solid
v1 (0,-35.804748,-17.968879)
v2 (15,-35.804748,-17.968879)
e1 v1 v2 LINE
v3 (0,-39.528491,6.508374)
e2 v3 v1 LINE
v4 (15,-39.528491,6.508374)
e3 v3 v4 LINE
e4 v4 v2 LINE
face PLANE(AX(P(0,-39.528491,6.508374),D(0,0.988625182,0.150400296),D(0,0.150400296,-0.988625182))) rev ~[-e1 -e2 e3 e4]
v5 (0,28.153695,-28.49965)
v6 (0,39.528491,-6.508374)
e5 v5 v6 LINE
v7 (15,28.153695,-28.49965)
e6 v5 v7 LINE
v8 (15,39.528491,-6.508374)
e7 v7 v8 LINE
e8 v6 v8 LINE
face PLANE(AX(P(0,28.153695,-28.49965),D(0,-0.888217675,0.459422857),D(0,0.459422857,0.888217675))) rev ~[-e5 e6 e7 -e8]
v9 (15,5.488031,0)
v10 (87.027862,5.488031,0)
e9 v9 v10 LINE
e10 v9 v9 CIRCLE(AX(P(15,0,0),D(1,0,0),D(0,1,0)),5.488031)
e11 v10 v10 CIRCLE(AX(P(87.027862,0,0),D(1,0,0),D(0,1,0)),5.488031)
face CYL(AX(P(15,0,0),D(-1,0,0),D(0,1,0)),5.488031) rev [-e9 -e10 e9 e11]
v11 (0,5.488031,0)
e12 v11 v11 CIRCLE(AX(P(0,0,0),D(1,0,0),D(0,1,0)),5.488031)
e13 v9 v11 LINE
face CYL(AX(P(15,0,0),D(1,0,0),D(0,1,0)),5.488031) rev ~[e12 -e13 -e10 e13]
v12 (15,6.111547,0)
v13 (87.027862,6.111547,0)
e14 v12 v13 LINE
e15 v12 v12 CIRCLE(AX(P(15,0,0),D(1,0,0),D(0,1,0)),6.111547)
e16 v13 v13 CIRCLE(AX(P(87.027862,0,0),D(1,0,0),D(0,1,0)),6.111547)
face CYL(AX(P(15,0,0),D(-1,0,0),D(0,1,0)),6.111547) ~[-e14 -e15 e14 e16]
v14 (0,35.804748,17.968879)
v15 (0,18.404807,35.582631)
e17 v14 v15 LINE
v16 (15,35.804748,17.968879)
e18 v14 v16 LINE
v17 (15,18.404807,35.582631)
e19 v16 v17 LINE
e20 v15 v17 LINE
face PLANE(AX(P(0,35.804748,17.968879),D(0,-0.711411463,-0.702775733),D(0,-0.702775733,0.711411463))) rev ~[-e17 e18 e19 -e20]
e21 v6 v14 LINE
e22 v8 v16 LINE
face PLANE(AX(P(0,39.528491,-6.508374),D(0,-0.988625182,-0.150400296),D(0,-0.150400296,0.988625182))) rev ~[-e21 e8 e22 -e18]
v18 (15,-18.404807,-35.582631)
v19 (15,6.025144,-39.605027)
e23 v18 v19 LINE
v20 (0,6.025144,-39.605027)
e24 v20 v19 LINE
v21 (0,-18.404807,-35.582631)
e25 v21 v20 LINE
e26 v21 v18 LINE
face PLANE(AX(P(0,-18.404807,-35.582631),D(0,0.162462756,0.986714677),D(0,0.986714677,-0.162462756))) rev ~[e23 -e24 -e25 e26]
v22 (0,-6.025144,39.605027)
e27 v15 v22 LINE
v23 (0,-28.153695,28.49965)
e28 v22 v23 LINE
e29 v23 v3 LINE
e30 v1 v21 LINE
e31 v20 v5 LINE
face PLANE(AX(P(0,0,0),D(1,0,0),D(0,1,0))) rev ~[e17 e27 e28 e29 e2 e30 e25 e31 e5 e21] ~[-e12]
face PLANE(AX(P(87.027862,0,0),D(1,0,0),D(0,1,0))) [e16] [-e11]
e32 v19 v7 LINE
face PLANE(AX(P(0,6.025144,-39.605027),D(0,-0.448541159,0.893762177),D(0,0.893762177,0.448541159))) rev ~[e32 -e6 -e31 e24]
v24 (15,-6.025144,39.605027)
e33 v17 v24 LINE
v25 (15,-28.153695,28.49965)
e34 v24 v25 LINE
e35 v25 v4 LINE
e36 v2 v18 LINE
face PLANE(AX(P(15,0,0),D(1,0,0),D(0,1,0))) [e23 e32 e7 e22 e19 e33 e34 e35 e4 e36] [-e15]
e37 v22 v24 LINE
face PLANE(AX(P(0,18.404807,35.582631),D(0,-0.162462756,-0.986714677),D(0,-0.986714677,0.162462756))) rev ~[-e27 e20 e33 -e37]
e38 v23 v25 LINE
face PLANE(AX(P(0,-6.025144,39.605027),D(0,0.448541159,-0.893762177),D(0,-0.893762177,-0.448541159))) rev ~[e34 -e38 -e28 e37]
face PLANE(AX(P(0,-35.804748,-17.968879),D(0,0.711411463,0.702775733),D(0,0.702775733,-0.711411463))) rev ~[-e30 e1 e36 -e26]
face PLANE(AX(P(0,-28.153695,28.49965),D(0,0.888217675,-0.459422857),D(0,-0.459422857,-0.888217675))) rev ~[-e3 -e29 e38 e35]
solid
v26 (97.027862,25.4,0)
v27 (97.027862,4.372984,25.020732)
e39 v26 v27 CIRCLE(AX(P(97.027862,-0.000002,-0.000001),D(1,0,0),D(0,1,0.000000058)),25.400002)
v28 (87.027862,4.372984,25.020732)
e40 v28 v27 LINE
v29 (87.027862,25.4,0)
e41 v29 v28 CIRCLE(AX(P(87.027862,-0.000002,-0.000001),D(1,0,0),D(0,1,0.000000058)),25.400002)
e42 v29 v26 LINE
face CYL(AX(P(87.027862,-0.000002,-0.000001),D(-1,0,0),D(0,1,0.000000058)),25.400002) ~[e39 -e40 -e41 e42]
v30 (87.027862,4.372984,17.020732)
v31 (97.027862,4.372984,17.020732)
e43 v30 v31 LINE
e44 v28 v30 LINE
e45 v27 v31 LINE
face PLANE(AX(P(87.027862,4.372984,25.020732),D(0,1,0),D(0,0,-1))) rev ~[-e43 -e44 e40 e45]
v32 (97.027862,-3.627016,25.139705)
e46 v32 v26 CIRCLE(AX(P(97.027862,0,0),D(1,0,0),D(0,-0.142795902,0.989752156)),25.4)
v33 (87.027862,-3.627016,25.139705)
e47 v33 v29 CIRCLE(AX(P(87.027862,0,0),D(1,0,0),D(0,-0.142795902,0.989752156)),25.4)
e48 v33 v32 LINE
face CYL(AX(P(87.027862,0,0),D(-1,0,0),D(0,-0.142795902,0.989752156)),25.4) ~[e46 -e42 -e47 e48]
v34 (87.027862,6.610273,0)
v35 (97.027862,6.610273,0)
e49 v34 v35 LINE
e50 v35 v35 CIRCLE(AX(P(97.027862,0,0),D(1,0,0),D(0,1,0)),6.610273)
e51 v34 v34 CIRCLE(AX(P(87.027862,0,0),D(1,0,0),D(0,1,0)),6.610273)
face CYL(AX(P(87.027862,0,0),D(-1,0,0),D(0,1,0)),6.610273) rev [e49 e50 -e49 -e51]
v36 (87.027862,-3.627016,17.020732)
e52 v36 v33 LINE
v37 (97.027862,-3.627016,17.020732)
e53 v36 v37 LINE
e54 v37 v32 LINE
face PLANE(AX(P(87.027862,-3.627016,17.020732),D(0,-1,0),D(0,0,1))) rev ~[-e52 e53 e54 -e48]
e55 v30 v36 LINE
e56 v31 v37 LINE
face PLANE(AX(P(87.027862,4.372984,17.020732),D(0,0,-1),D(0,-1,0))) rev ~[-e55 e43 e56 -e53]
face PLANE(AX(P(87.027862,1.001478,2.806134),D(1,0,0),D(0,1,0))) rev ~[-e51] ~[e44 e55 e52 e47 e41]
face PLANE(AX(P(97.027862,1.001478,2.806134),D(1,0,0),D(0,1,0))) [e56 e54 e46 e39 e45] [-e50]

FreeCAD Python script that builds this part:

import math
import FreeCAD as App
import Part
import Sketcher
from FreeCAD import Vector


def add_polygon(sketch, points):
    """Adds a closed chain of lines whose ends are joined by coincident constraints."""
    first, n = sketch.GeometryCount, len(points)
    for a, b in zip(points, points[1:] + points[:1]):
        sketch.addGeometry(Part.LineSegment(App.Vector(*a, 0), App.Vector(*b, 0)), False)
    for i in range(n):
        sketch.addConstraint(Sketcher.Constraint("Coincident", first + i, 2, first + (i + 1) % n, 1))

doc = App.newDocument("Part")
body = doc.addObject("PartDesign::Body", "Body")

# Sketch on YZ plane
sketch1 = doc.addObject("Sketcher::SketchObject", "Sketch")
body.addObject(sketch1)
sketch1.AttachmentSupport = (doc.YZ_Plane, [""])
sketch1.MapMode = "FlatFace"
add_polygon(sketch1, [(28, -28), (40, -7), (36, 18), (18, 36), (-6, 40), (-28, 28), (-40, 7), (-36, -18), (-18, -36), (6, -40)])  # lines 0-9
sketch1.addConstraint(Sketcher.Constraint("Symmetric", 0, 2, 5, 2, -1, 1))
sketch1.addConstraint(Sketcher.Constraint("Symmetric", 1, 2, 6, 2, -1, 1))
sketch1.addConstraint(Sketcher.Constraint("Symmetric", 2, 2, 7, 2, -1, 1))
sketch1.addConstraint(Sketcher.Constraint("Symmetric", 3, 2, 8, 2, -1, 1))
sketch1.addConstraint(Sketcher.Constraint("Symmetric", 4, 2, 9, 2, -1, 1))
sketch1.addConstraint(Sketcher.Constraint("Equal", 0, 1))
sketch1.addConstraint(Sketcher.Constraint("Equal", 1, 2))
sketch1.addConstraint(Sketcher.Constraint("Equal", 2, 3))
sketch1.addConstraint(Sketcher.Constraint("Equal", 3, 4))
sketch1.addConstraint(Sketcher.Constraint("DistanceY", 0, 2, 3, 2, 46.113401))
sketch1.addConstraint(Sketcher.Constraint("DistanceX", 5, 2, 2, 2, 57.933298))
sketch1.addConstraint(Sketcher.Constraint("Distance", 0, 24.758881))
sketch1.addConstraint(Sketcher.Constraint("DistanceX", -1, 1, 0, 2, 39.528491))
sketch1.addConstraint(Sketcher.Constraint("DistanceY", -1, 1, 1, 2, 17.968879))
sketch1.addConstraint(Sketcher.Constraint("DistanceY", -1, 1, 2, 2, 35.582631))
pad1 = doc.addObject("PartDesign::Pad", "Pad")
body.addObject(pad1)
pad1.Profile = sketch1
pad1.Length = 15

# Sketch on YZ plane
sketch2 = doc.addObject("Sketcher::SketchObject", "Sketch001")
body.addObject(sketch2)
sketch2.AttachmentSupport = (doc.YZ_Plane, [""])
sketch2.MapMode = "FlatFace"
sketch2.AttachmentOffset = App.Placement(Vector(0, 0, 15), App.Rotation())
sketch2.addGeometry(Part.Circle(Vector(0, 0, 0), Vector(0, 0, 1), 5), False)
sketch2.addConstraint(Sketcher.Constraint("Coincident", 0, 3, -1, 1))
sketch2.addConstraint(Sketcher.Constraint("Diameter", 0, 10.976062))
pocket1 = doc.addObject("PartDesign::Pocket", "Pocket")
body.addObject(pocket1)
pocket1.Profile = sketch2
pocket1.Length = 25.4

# Sketch on YZ plane
sketch3 = doc.addObject("Sketcher::SketchObject", "Sketch002")
body.addObject(sketch3)
sketch3.AttachmentSupport = (doc.YZ_Plane, [""])
sketch3.MapMode = "FlatFace"
sketch3.AttachmentOffset = App.Placement(Vector(0, 0, 15), App.Rotation())
sketch3.addGeometry(Part.Circle(Vector(0, 0, 0), Vector(0, 0, 1), 6), False)
sketch3.addGeometry(Part.Circle(Vector(0, 0, 0), Vector(0, 0, 1), 5), False)
sketch3.addConstraint(Sketcher.Constraint("Coincident", 0, 3, -1, 1))
sketch3.addConstraint(Sketcher.Constraint("Coincident", 1, 3, -1, 1))
sketch3.addConstraint(Sketcher.Constraint("Diameter", 0, 12.223094))
sketch3.addConstraint(Sketcher.Constraint("Diameter", 1, 10.976062))
pad2 = doc.addObject("PartDesign::Pad", "Pad001")
body.addObject(pad2)
pad2.Profile = sketch3
pad2.Length = 72.027862
body2 = doc.addObject("PartDesign::Body", "Body001")

# Sketch on YZ plane
sketch4 = doc.addObject("Sketcher::SketchObject", "Sketch003")
body2.addObject(sketch4)
sketch4.AttachmentSupport = (doc.getObject("YZ_Plane001"), [""])
sketch4.MapMode = "FlatFace"
sketch4.AttachmentOffset = App.Placement(Vector(0, 0, 87.027862), App.Rotation())
sketch4.addGeometry(Part.Circle(Vector(0, 0, 0), Vector(0, 0, 1), 8), False)
sketch4.addGeometry(Part.Circle(Vector(0, 0, 0), Vector(0, 0, 1), 7), False)
sketch4.addConstraint(Sketcher.Constraint("Coincident", 0, 3, -1, 1))
sketch4.addConstraint(Sketcher.Constraint("Coincident", 1, 3, -1, 1))
sketch4.addConstraint(Sketcher.Constraint("Diameter", 0, 16.376994))
sketch4.addConstraint(Sketcher.Constraint("Diameter", 1, 13.200992))
pad3 = doc.addObject("PartDesign::Pad", "Pad002")
body2.addObject(pad3)
pad3.Profile = sketch4
pad3.Length = 10
body3 = doc.addObject("PartDesign::Body", "Body002")

# Sketch on YZ plane
sketch5 = doc.addObject("Sketcher::SketchObject", "Sketch004")
body3.addObject(sketch5)
sketch5.AttachmentSupport = (doc.getObject("YZ_Plane002"), [""])
sketch5.MapMode = "FlatFace"
sketch5.AttachmentOffset = App.Placement(Vector(0, 0, 87.027862), App.Rotation())
sketch5.addGeometry(Part.ArcOfCircle(Part.Circle(Vector(0, 0, 0), Vector(0, 0, 1), 25), math.radians(98), math.radians(360)), False)
sketch5.addGeometry(Part.ArcOfCircle(Part.Circle(Vector(0, 0, 0), Vector(0, 0, 1), 25), math.radians(0), math.radians(80)), False)
sketch5.addGeometry(Part.LineSegment(Vector(4, 25, 0), Vector(4, 17, 0)), False)
sketch5.addGeometry(Part.LineSegment(Vector(4, 17, 0), Vector(-4, 17, 0)), False)
sketch5.addGeometry(Part.LineSegment(Vector(-4, 17, 0), Vector(-4, 25, 0)), False)
sketch5.addGeometry(Part.Circle(Vector(0, 0, 0), Vector(0, 0, 1), 7), False)
sketch5.addConstraint(Sketcher.Constraint("Tangent", 0, 2, 1, 1))
sketch5.addConstraint(Sketcher.Constraint("Coincident", 1, 2, 2, 1))
sketch5.addConstraint(Sketcher.Constraint("Coincident", 2, 2, 3, 1))
sketch5.addConstraint(Sketcher.Constraint("Coincident", 3, 2, 4, 1))
sketch5.addConstraint(Sketcher.Constraint("Coincident", 4, 2, 0, 1))
sketch5.addConstraint(Sketcher.Constraint("Vertical", 2))
sketch5.addConstraint(Sketcher.Constraint("Horizontal", 3))
sketch5.addConstraint(Sketcher.Constraint("Vertical", 4))
sketch5.addConstraint(Sketcher.Constraint("Coincident", 0, 3, -1, 1))
sketch5.addConstraint(Sketcher.Constraint("Coincident", 5, 3, -1, 1))
sketch5.addConstraint(Sketcher.Constraint("PointOnObject", 0, 2, -1))
sketch5.addConstraint(Sketcher.Constraint("Equal", 3, 2))
sketch5.addConstraint(Sketcher.Constraint("Radius", 0, 25.4))
sketch5.addConstraint(Sketcher.Constraint("DistanceX", 3, 2, 3, 1, 8.0))
sketch5.addConstraint(Sketcher.Constraint("Diameter", 5, 13.220546))
sketch5.addConstraint(Sketcher.Constraint("Radius", 1, 25.400002))
sketch5.addConstraint(Sketcher.Constraint("DistanceY", 4, 1, 4, 2, 8.118973))
pad4 = doc.addObject("PartDesign::Pad", "Pad003")
body3.addObject(pad4)
pad4.Profile = sketch5
pad4.Length = 10
body2.Visibility = False

doc.recompute()
